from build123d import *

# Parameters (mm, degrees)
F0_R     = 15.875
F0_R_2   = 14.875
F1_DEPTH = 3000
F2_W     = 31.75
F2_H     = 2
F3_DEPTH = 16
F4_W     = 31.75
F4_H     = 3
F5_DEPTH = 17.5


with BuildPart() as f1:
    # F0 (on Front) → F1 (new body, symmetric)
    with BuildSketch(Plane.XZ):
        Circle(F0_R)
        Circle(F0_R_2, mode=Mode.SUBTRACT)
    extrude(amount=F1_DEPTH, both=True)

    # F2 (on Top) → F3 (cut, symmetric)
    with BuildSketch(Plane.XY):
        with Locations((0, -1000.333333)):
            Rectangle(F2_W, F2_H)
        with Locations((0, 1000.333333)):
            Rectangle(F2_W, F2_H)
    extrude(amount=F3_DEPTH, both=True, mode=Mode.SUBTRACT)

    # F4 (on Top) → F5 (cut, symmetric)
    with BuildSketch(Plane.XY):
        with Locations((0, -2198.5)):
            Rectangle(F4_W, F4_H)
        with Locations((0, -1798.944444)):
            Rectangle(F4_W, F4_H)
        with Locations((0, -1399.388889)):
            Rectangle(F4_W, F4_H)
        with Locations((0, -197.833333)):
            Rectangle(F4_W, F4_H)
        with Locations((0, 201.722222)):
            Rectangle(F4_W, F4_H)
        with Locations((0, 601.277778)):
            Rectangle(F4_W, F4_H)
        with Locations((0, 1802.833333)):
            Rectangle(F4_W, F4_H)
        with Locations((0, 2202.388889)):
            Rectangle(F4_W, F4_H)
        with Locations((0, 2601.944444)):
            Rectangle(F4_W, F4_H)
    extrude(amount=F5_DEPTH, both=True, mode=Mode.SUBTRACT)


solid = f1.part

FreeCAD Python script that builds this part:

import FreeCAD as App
import Part
import Sketcher


def add_polygon(sketch, points):
    """Adds a closed chain of lines whose ends are joined by coincident constraints."""
    first, n = sketch.GeometryCount, len(points)
    for a, b in zip(points, points[1:] + points[:1]):
        sketch.addGeometry(Part.LineSegment(App.Vector(*a, 0), App.Vector(*b, 0)), False)
    for i in range(n):
        sketch.addConstraint(Sketcher.Constraint("Coincident", first + i, 2, first + (i + 1) % n, 1))

doc = App.newDocument("Part")
params = doc.addObject("Spreadsheet::Sheet", "Params")
for row, (alias, value) in enumerate([
    ("sketch1_diameter", "31.75 mm"),
    ("sketch1_diameter2", "29.75 mm"),
    ("pad1_length", "6000 mm"),
    ("sketch2_height", "2 mm"),
    ("sketch2_width", "31.75 mm"),
    ("pocket1_length", "32 mm"),
    ("sketch3_height", "3 mm"),
    ("sketch3_width", "31.75 mm"),
    ("pocket2_length", "35 mm"),
], start=1):
    params.set(f"A{row}", alias)
    params.set(f"B{row}", "=" + value)
    params.setAlias(f"B{row}", alias)

body = doc.addObject("PartDesign::Body", "Body")
body.AllowCompound = True

sketch1 = body.newObject("Sketcher::SketchObject", "Sketch")
sketch1.AttachmentSupport = (doc.getObject("XZ_Plane"), [""])
sketch1.MapMode = "FlatFace"
sketch1.addGeometry(Part.Circle(App.Vector(0, 0, 0), App.Vector(0, 0, 1), 15.875), False)
sketch1.addGeometry(Part.Circle(App.Vector(0, 0, 0), App.Vector(0, 0, 1), 14.875), False)
sketch1.addConstraint(Sketcher.Constraint("Coincident", 0, 3, -1, 1))
sketch1.addConstraint(Sketcher.Constraint("Coincident", 1, 3, -1, 1))
sketch1.addConstraint(Sketcher.Constraint("Diameter", 0, 31.75))
sketch1.addConstraint(Sketcher.Constraint("Diameter", 1, 29.75))
sketch1.setExpression("Constraints[2]", "Params.sketch1_diameter")
sketch1.setExpression("Constraints[3]", "Params.sketch1_diameter2")
pad1 = body.newObject("PartDesign::Pad", "Pad")
pad1.Profile = sketch1
pad1.setExpression("Length", "Params.pad1_length")
pad1.Midplane = True

sketch2 = body.newObject("Sketcher::SketchObject", "Sketch001")
sketch2.AttachmentSupport = (doc.getObject("XY_Plane"), [""])
sketch2.MapMode = "FlatFace"
add_polygon(sketch2, [(-15.875, -999.333333), (-15.875, -1001.333333), (15.875, -1001.333333), (15.875, -999.333333)])
add_polygon(sketch2, [(-15.875, 1001.333333), (-15.875, 999.333333), (15.875, 999.333333), (15.875, 1001.333333)])
sketch2.addConstraint(Sketcher.Constraint("Vertical", 0))
sketch2.addConstraint(Sketcher.Constraint("Horizontal", 1))
sketch2.addConstraint(Sketcher.Constraint("Vertical", 2))
sketch2.addConstraint(Sketcher.Constraint("Horizontal", 3))
sketch2.addConstraint(Sketcher.Constraint("Vertical", 4))
sketch2.addConstraint(Sketcher.Constraint("Horizontal", 5))
sketch2.addConstraint(Sketcher.Constraint("Vertical", 6))
sketch2.addConstraint(Sketcher.Constraint("Horizontal", 7))
sketch2.addConstraint(Sketcher.Constraint("Symmetric", 2, 2, 4, 2, -1, 1))
sketch2.addConstraint(Sketcher.Constraint("Symmetric", 0, 2, 6, 2, -1, 1))
sketch2.addConstraint(Sketcher.Constraint("Vertical", 3, 2, 4, 2))
sketch2.addConstraint(Sketcher.Constraint("DistanceY", 0, 2, 0, 1, 2.0))
sketch2.addConstraint(Sketcher.Constraint("DistanceX", 1, 1, 1, 2, 31.75))
sketch2.addConstraint(Sketcher.Constraint("DistanceY", 0, 2, -1, 1, 1001.333333))
sketch2.setExpression("Constraints[19]", "Params.sketch2_height")
sketch2.setExpression("Constraints[20]", "Params.sketch2_width")
pocket1 = body.newObject("PartDesign::Pocket", "Pocket")
pocket1.Profile = sketch2
pocket1.setExpression("Length", "Params.pocket1_length")
pocket1.Midplane = True

sketch3 = body.newObject("Sketcher::SketchObject", "Sketch002")
sketch3.AttachmentSupport = (doc.getObject("XY_Plane"), [""])
sketch3.MapMode = "FlatFace"
add_polygon(sketch3, [(-15.875, -2197), (-15.875, -2200), (15.875, -2200), (15.875, -2197)])
add_polygon(sketch3, [(-15.875, -1797.444444), (-15.875, -1800.444444), (15.875, -1800.444444), (15.875, -1797.444444)])
add_polygon(sketch3, [(-15.875, -1397.888889), (-15.875, -1400.888889), (15.875, -1400.888889), (15.875, -1397.888889)])
add_polygon(sketch3, [(-15.875, -196.333333), (-15.875, -199.333333), (15.875, -199.333333), (15.875, -196.333333)])
add_polygon(sketch3, [(-15.875, 203.222222), (-15.875, 200.222222), (15.875, 200.222222), (15.875, 203.222222)])
add_polygon(sketch3, [(-15.875, 602.777778), (-15.875, 599.777778), (15.875, 599.777778), (15.875, 602.777778)])
add_polygon(sketch3, [(-15.875, 1804.333333), (-15.875, 1801.333333), (15.875, 1801.333333), (15.875, 1804.333333)])
add_polygon(sketch3, [(-15.875, 2203.888889), (-15.875, 2200.888889), (15.875, 2200.888889), (15.875, 2203.888889)])
add_polygon(sketch3, [(-15.875, 2603.444444), (-15.875, 2600.444444), (15.875, 2600.444444), (15.875, 2603.444444)])
sketch3.addConstraint(Sketcher.Constraint("Vertical", 0))
sketch3.addConstraint(Sketcher.Constraint("Horizontal", 1))
sketch3.addConstraint(Sketcher.Constraint("Vertical", 2))
sketch3.addConstraint(Sketcher.Constraint("Horizontal", 3))
sketch3.addConstraint(Sketcher.Constraint("Vertical", 4))
sketch3.addConstraint(Sketcher.Constraint("Horizontal", 5))
sketch3.addConstraint(Sketcher.Constraint("Vertical", 6))
sketch3.addConstraint(Sketcher.Constraint("Horizontal", 7))
sketch3.addConstraint(Sketcher.Constraint("Vertical", 8))
sketch3.addConstraint(Sketcher.Constraint("Horizontal", 9))
sketch3.addConstraint(Sketcher.Constraint("Vertical", 10))
sketch3.addConstraint(Sketcher.Constraint("Horizontal", 11))
sketch3.addConstraint(Sketcher.Constraint("Vertical", 12))
sketch3.addConstraint(Sketcher.Constraint("Horizontal", 13))
sketch3.addConstraint(Sketcher.Constraint("Vertical", 14))
sketch3.addConstraint(Sketcher.Constraint("Horizontal", 15))
sketch3.addConstraint(Sketcher.Constraint("Vertical", 16))
sketch3.addConstraint(Sketcher.Constraint("Horizontal", 17))
sketch3.addConstraint(Sketcher.Constraint("Vertical", 18))
sketch3.addConstraint(Sketcher.Constraint("Horizontal", 19))
sketch3.addConstraint(Sketcher.Constraint("Vertical", 20))
sketch3.addConstraint(Sketcher.Constraint("Horizontal", 21))
sketch3.addConstraint(Sketcher.Constraint("Vertical", 22))
sketch3.addConstraint(Sketcher.Constraint("Horizontal", 23))
sketch3.addConstraint(Sketcher.Constraint("Vertical", 24))
sketch3.addConstraint(Sketcher.Constraint("Horizontal", 25))
sketch3.addConstraint(Sketcher.Constraint("Vertical", 26))
sketch3.addConstraint(Sketcher.Constraint("Horizontal", 27))
sketch3.addConstraint(Sketcher.Constraint("Vertical", 28))
sketch3.addConstraint(Sketcher.Constraint("Horizontal", 29))
sketch3.addConstraint(Sketcher.Constraint("Vertical", 30))
sketch3.addConstraint(Sketcher.Constraint("Horizontal", 31))
sketch3.addConstraint(Sketcher.Constraint("Vertical", 32))
sketch3.addConstraint(Sketcher.Constraint("Horizontal", 33))
sketch3.addConstraint(Sketcher.Constraint("Vertical", 34))
sketch3.addConstraint(Sketcher.Constraint("Horizontal", 35))
sketch3.addConstraint(Sketcher.Constraint("Vertical", 3, 2, 4, 2))
sketch3.addConstraint(Sketcher.Constraint("Vertical", 2, 2, 5, 2))
sketch3.addConstraint(Sketcher.Constraint("Vertical", 7, 2, 8, 2))
sketch3.addConstraint(Sketcher.Constraint("Vertical", 6, 2, 9, 2))
sketch3.addConstraint(Sketcher.Constraint("Vertical", 11, 2, 12, 2))
sketch3.addConstraint(Sketcher.Constraint("Vertical", 10, 2, 13, 2))
sketch3.addConstraint(Sketcher.Constraint("Vertical", 15, 2, 16, 2))
sketch3.addConstraint(Sketcher.Constraint("Vertical", 14, 2, 17, 2))
sketch3.addConstraint(Sketcher.Constraint("Vertical", 19, 2, 20, 2))
sketch3.addConstraint(Sketcher.Constraint("Vertical", 18, 2, 21, 2))
sketch3.addConstraint(Sketcher.Constraint("Vertical", 23, 2, 24, 2))
sketch3.addConstraint(Sketcher.Constraint("Vertical", 22, 2, 25, 2))
sketch3.addConstraint(Sketcher.Constraint("Vertical", 27, 2, 28, 2))
sketch3.addConstraint(Sketcher.Constraint("Vertical", 26, 2, 29, 2))
sketch3.addConstraint(Sketcher.Constraint("Vertical", 31, 2, 32, 2))
sketch3.addConstraint(Sketcher.Constraint("Vertical", 30, 2, 33, 2))
sketch3.addConstraint(Sketcher.Constraint("Equal", 2, 4))
sketch3.addConstraint(Sketcher.Constraint("Equal", 6, 8))
sketch3.addConstraint(Sketcher.Constraint("Equal", 10, 12))
sketch3.addConstraint(Sketcher.Constraint("Equal", 14, 16))
sketch3.addConstraint(Sketcher.Constraint("Equal", 18, 20))
sketch3.addConstraint(Sketcher.Constraint("Equal", 22, 24))
sketch3.addConstraint(Sketcher.Constraint("Equal", 26, 28))
sketch3.addConstraint(Sketcher.Constraint("Equal", 30, 32))
sketch3.addConstraint(Sketcher.Constraint("DistanceY", 0, 2, 0, 1, 3.0))
sketch3.addConstraint(Sketcher.Constraint("DistanceY", 0, 2, -1, 1, 2200.0))
sketch3.addConstraint(Sketcher.Constraint("DistanceX", 1, 1, 1, 2, 31.75))
sketch3.addConstraint(Sketcher.Constraint("DistanceX", 0, 2, -1, 1, 15.875))
sketch3.addConstraint(Sketcher.Constraint("DistanceY", 8, 2, -1, 1, 1400.888889))
sketch3.addConstraint(Sketcher.Constraint("DistanceY", -1, 1, 16, 2, 200.222222))
sketch3.addConstraint(Sketcher.Constraint("DistanceY", -1, 1, 20, 2, 599.777778))
sketch3.addConstraint(Sketcher.Constraint("DistanceY", -1, 1, 28, 2, 2200.888889))
sketch3.addConstraint(Sketcher.Constraint("DistanceY", 7, 2, 12, 2, 1598.111111))
sketch3.addConstraint(Sketcher.Constraint("DistanceY", 15, 2, 20, 2, 796.111111))
sketch3.addConstraint(Sketcher.Constraint("DistanceY", 19, 2, 24, 2, 1598.111111))
sketch3.addConstraint(Sketcher.Constraint("DistanceY", 27, 2, 32, 2, 796.111111))
sketch3.setExpression("Constraints[96]", "Params.sketch3_height")
sketch3.setExpression("Constraints[98]", "Params.sketch3_width")
pocket2 = body.newObject("PartDesign::Pocket", "Pocket001")
pocket2.Profile = sketch3
pocket2.setExpression("Length", "Params.pocket2_length")
pocket2.Midplane = True

doc.recompute()
